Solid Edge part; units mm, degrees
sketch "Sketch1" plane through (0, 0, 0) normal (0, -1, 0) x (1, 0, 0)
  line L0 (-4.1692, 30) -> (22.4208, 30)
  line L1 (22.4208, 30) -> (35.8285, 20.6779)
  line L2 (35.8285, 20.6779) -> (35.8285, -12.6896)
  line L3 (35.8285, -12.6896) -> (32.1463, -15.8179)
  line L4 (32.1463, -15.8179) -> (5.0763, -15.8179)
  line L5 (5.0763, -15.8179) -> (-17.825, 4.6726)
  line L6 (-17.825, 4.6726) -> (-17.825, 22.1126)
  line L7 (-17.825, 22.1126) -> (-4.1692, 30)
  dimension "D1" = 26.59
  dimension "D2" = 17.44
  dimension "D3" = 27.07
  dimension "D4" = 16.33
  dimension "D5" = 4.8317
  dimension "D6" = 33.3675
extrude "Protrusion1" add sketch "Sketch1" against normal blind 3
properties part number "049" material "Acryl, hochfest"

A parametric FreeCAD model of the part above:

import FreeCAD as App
import Part
import Sketcher
from FreeCAD import Vector
Q = App.Units.Quantity


def add_polygon(sketch, points):
    """Adds a closed chain of lines whose ends are joined by coincident constraints."""
    first, n = sketch.GeometryCount, len(points)
    for a, b in zip(points, points[1:] + points[:1]):
        sketch.addGeometry(Part.LineSegment(App.Vector(*a, 0), App.Vector(*b, 0)), False)
    for i in range(n):
        sketch.addConstraint(Sketcher.Constraint("Coincident", first + i, 2, first + (i + 1) % n, 1))

doc = App.newDocument("Part")
body = doc.addObject("PartDesign::Body", "Body")

# Sketch on XZ plane
sketch1 = body.newObject("Sketcher::SketchObject", "Sketch")
sketch1.AttachmentSupport = (doc.getObject("XZ_Plane"), [""])
sketch1.MapMode = "FlatFace"
add_polygon(sketch1, [(22.4, 30), (-4.2, 30), (-17.8, 22.1), (-17.8, 4.7), (5.1, -15.8), (32.1, -15.8), (35.8, -12.7), (35.8, 20.7)])  # lines 0-7
sketch1.addConstraint([
    Sketcher.Constraint("Horizontal", 0),
    Sketcher.Constraint("Vertical", 2),
    Sketcher.Constraint("Horizontal", 4),
    Sketcher.Constraint("Vertical", 6),
    Sketcher.Constraint("DistanceX", 1, 2, -1, 1, Q("17.825 mm")),
    Sketcher.Constraint("DistanceY", -1, 1, 0, 2, Q("30 mm")),
    Sketcher.Constraint("DistanceX", 0, 2, 0, 1, Q("26.59 mm")),
    Sketcher.Constraint("DistanceX", 4, 1, 4, 2, Q("27.07 mm")),
    Sketcher.Constraint("DistanceY", 2, 2, 2, 1, Q("17.44 mm")),
    Sketcher.Constraint("DistanceX", 0, 2, -1, 1, Q("4.1692 mm")),
    Sketcher.Constraint("DistanceX", -1, 1, 4, 2, Q("32.1463 mm")),
    Sketcher.Constraint("DistanceX", -1, 1, 5, 2, Q("35.8285 mm")),
    Sketcher.Constraint("Angle", 1, Q("-149.9899 deg")),
    Sketcher.Constraint("Angle", 3, Q("-41.82 deg")),
    Sketcher.Constraint("Angle", 5, Q("40.3504 deg")),
    Sketcher.Constraint("Angle", 7, Q("145.19 deg")),
])
pad1 = body.newObject("PartDesign::Pad", "Pad")
pad1.Profile = sketch1
pad1.Length = 3
pad1.Reversed = True

doc.recompute()
